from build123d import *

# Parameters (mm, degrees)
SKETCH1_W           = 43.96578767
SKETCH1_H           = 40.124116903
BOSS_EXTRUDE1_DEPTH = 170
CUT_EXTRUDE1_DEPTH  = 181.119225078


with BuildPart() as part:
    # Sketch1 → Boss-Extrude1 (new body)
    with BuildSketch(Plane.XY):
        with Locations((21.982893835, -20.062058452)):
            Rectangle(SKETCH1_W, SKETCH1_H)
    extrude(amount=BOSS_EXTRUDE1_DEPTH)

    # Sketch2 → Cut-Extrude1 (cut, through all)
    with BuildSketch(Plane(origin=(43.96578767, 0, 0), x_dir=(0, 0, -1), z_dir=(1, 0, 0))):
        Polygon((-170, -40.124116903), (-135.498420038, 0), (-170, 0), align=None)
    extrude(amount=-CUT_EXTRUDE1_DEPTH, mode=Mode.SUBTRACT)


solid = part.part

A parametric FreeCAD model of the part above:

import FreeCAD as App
import Part
import Sketcher

V = App.Vector


def add_polygon(sketch, points):
    """Adds a closed chain of lines whose ends are joined by coincident constraints."""
    first, n = sketch.GeometryCount, len(points)
    for a, b in zip(points, points[1:] + points[:1]):
        sketch.addGeometry(Part.LineSegment(App.Vector(*a, 0), App.Vector(*b, 0)), False)
    for i in range(n):
        sketch.addConstraint(Sketcher.Constraint("Coincident", first + i, 2, first + (i + 1) % n, 1))

doc = App.newDocument("Part")
body = doc.addObject("PartDesign::Body", "Body")

sketch1 = body.newObject("Sketcher::SketchObject", "Sketch")
sketch1.AttachmentSupport = (doc.getObject("XY_Plane"), [""])
sketch1.MapMode = "FlatFace"
add_polygon(sketch1, [(0, 0), (0, -40), (44, -40), (44, 0)])
sketch1.addConstraint(Sketcher.Constraint("Vertical", 0))
sketch1.addConstraint(Sketcher.Constraint("Horizontal", 1))
sketch1.addConstraint(Sketcher.Constraint("Vertical", 2))
sketch1.addConstraint(Sketcher.Constraint("Horizontal", 3))
sketch1.addConstraint(Sketcher.Constraint("Coincident", 3, 2, -1, 1))
sketch1.addConstraint(Sketcher.Constraint("DistanceX", 1, 1, 1, 2, 43.965788))
sketch1.addConstraint(Sketcher.Constraint("DistanceY", 0, 2, 0, 1, 40.124117))
pad1 = body.newObject("PartDesign::Pad", "Pad")
pad1.Profile = sketch1
pad1.Length = 170

sketch2 = body.newObject("Sketcher::SketchObject", "Sketch001")
sketch2.AttachmentSupport = (doc.getObject("YZ_Plane"), [""])
sketch2.MapMode = "FlatFace"
sketch2.AttachmentOffset = App.Placement(V(0, 0, 43.965788), App.Rotation())
add_polygon(sketch2, [(-40, 170), (0, 135), (0, 170)])
sketch2.addConstraint(Sketcher.Constraint("Vertical", 1))
sketch2.addConstraint(Sketcher.Constraint("Horizontal", 2))
sketch2.addConstraint(Sketcher.Constraint("PointOnObject", 0, 2, -2))
sketch2.addConstraint(Sketcher.Constraint("DistanceY", -1, 1, 1, 2, 170.0))
sketch2.addConstraint(Sketcher.Constraint("DistanceY", 1, 1, 1, 2, 34.50158))
sketch2.addConstraint(Sketcher.Constraint("DistanceX", 2, 2, 2, 1, 40.124117))
pocket1 = body.newObject("PartDesign::Pocket", "Pocket")
pocket1.Profile = sketch2
pocket1.Type = "ThroughAll"

doc.recompute()
